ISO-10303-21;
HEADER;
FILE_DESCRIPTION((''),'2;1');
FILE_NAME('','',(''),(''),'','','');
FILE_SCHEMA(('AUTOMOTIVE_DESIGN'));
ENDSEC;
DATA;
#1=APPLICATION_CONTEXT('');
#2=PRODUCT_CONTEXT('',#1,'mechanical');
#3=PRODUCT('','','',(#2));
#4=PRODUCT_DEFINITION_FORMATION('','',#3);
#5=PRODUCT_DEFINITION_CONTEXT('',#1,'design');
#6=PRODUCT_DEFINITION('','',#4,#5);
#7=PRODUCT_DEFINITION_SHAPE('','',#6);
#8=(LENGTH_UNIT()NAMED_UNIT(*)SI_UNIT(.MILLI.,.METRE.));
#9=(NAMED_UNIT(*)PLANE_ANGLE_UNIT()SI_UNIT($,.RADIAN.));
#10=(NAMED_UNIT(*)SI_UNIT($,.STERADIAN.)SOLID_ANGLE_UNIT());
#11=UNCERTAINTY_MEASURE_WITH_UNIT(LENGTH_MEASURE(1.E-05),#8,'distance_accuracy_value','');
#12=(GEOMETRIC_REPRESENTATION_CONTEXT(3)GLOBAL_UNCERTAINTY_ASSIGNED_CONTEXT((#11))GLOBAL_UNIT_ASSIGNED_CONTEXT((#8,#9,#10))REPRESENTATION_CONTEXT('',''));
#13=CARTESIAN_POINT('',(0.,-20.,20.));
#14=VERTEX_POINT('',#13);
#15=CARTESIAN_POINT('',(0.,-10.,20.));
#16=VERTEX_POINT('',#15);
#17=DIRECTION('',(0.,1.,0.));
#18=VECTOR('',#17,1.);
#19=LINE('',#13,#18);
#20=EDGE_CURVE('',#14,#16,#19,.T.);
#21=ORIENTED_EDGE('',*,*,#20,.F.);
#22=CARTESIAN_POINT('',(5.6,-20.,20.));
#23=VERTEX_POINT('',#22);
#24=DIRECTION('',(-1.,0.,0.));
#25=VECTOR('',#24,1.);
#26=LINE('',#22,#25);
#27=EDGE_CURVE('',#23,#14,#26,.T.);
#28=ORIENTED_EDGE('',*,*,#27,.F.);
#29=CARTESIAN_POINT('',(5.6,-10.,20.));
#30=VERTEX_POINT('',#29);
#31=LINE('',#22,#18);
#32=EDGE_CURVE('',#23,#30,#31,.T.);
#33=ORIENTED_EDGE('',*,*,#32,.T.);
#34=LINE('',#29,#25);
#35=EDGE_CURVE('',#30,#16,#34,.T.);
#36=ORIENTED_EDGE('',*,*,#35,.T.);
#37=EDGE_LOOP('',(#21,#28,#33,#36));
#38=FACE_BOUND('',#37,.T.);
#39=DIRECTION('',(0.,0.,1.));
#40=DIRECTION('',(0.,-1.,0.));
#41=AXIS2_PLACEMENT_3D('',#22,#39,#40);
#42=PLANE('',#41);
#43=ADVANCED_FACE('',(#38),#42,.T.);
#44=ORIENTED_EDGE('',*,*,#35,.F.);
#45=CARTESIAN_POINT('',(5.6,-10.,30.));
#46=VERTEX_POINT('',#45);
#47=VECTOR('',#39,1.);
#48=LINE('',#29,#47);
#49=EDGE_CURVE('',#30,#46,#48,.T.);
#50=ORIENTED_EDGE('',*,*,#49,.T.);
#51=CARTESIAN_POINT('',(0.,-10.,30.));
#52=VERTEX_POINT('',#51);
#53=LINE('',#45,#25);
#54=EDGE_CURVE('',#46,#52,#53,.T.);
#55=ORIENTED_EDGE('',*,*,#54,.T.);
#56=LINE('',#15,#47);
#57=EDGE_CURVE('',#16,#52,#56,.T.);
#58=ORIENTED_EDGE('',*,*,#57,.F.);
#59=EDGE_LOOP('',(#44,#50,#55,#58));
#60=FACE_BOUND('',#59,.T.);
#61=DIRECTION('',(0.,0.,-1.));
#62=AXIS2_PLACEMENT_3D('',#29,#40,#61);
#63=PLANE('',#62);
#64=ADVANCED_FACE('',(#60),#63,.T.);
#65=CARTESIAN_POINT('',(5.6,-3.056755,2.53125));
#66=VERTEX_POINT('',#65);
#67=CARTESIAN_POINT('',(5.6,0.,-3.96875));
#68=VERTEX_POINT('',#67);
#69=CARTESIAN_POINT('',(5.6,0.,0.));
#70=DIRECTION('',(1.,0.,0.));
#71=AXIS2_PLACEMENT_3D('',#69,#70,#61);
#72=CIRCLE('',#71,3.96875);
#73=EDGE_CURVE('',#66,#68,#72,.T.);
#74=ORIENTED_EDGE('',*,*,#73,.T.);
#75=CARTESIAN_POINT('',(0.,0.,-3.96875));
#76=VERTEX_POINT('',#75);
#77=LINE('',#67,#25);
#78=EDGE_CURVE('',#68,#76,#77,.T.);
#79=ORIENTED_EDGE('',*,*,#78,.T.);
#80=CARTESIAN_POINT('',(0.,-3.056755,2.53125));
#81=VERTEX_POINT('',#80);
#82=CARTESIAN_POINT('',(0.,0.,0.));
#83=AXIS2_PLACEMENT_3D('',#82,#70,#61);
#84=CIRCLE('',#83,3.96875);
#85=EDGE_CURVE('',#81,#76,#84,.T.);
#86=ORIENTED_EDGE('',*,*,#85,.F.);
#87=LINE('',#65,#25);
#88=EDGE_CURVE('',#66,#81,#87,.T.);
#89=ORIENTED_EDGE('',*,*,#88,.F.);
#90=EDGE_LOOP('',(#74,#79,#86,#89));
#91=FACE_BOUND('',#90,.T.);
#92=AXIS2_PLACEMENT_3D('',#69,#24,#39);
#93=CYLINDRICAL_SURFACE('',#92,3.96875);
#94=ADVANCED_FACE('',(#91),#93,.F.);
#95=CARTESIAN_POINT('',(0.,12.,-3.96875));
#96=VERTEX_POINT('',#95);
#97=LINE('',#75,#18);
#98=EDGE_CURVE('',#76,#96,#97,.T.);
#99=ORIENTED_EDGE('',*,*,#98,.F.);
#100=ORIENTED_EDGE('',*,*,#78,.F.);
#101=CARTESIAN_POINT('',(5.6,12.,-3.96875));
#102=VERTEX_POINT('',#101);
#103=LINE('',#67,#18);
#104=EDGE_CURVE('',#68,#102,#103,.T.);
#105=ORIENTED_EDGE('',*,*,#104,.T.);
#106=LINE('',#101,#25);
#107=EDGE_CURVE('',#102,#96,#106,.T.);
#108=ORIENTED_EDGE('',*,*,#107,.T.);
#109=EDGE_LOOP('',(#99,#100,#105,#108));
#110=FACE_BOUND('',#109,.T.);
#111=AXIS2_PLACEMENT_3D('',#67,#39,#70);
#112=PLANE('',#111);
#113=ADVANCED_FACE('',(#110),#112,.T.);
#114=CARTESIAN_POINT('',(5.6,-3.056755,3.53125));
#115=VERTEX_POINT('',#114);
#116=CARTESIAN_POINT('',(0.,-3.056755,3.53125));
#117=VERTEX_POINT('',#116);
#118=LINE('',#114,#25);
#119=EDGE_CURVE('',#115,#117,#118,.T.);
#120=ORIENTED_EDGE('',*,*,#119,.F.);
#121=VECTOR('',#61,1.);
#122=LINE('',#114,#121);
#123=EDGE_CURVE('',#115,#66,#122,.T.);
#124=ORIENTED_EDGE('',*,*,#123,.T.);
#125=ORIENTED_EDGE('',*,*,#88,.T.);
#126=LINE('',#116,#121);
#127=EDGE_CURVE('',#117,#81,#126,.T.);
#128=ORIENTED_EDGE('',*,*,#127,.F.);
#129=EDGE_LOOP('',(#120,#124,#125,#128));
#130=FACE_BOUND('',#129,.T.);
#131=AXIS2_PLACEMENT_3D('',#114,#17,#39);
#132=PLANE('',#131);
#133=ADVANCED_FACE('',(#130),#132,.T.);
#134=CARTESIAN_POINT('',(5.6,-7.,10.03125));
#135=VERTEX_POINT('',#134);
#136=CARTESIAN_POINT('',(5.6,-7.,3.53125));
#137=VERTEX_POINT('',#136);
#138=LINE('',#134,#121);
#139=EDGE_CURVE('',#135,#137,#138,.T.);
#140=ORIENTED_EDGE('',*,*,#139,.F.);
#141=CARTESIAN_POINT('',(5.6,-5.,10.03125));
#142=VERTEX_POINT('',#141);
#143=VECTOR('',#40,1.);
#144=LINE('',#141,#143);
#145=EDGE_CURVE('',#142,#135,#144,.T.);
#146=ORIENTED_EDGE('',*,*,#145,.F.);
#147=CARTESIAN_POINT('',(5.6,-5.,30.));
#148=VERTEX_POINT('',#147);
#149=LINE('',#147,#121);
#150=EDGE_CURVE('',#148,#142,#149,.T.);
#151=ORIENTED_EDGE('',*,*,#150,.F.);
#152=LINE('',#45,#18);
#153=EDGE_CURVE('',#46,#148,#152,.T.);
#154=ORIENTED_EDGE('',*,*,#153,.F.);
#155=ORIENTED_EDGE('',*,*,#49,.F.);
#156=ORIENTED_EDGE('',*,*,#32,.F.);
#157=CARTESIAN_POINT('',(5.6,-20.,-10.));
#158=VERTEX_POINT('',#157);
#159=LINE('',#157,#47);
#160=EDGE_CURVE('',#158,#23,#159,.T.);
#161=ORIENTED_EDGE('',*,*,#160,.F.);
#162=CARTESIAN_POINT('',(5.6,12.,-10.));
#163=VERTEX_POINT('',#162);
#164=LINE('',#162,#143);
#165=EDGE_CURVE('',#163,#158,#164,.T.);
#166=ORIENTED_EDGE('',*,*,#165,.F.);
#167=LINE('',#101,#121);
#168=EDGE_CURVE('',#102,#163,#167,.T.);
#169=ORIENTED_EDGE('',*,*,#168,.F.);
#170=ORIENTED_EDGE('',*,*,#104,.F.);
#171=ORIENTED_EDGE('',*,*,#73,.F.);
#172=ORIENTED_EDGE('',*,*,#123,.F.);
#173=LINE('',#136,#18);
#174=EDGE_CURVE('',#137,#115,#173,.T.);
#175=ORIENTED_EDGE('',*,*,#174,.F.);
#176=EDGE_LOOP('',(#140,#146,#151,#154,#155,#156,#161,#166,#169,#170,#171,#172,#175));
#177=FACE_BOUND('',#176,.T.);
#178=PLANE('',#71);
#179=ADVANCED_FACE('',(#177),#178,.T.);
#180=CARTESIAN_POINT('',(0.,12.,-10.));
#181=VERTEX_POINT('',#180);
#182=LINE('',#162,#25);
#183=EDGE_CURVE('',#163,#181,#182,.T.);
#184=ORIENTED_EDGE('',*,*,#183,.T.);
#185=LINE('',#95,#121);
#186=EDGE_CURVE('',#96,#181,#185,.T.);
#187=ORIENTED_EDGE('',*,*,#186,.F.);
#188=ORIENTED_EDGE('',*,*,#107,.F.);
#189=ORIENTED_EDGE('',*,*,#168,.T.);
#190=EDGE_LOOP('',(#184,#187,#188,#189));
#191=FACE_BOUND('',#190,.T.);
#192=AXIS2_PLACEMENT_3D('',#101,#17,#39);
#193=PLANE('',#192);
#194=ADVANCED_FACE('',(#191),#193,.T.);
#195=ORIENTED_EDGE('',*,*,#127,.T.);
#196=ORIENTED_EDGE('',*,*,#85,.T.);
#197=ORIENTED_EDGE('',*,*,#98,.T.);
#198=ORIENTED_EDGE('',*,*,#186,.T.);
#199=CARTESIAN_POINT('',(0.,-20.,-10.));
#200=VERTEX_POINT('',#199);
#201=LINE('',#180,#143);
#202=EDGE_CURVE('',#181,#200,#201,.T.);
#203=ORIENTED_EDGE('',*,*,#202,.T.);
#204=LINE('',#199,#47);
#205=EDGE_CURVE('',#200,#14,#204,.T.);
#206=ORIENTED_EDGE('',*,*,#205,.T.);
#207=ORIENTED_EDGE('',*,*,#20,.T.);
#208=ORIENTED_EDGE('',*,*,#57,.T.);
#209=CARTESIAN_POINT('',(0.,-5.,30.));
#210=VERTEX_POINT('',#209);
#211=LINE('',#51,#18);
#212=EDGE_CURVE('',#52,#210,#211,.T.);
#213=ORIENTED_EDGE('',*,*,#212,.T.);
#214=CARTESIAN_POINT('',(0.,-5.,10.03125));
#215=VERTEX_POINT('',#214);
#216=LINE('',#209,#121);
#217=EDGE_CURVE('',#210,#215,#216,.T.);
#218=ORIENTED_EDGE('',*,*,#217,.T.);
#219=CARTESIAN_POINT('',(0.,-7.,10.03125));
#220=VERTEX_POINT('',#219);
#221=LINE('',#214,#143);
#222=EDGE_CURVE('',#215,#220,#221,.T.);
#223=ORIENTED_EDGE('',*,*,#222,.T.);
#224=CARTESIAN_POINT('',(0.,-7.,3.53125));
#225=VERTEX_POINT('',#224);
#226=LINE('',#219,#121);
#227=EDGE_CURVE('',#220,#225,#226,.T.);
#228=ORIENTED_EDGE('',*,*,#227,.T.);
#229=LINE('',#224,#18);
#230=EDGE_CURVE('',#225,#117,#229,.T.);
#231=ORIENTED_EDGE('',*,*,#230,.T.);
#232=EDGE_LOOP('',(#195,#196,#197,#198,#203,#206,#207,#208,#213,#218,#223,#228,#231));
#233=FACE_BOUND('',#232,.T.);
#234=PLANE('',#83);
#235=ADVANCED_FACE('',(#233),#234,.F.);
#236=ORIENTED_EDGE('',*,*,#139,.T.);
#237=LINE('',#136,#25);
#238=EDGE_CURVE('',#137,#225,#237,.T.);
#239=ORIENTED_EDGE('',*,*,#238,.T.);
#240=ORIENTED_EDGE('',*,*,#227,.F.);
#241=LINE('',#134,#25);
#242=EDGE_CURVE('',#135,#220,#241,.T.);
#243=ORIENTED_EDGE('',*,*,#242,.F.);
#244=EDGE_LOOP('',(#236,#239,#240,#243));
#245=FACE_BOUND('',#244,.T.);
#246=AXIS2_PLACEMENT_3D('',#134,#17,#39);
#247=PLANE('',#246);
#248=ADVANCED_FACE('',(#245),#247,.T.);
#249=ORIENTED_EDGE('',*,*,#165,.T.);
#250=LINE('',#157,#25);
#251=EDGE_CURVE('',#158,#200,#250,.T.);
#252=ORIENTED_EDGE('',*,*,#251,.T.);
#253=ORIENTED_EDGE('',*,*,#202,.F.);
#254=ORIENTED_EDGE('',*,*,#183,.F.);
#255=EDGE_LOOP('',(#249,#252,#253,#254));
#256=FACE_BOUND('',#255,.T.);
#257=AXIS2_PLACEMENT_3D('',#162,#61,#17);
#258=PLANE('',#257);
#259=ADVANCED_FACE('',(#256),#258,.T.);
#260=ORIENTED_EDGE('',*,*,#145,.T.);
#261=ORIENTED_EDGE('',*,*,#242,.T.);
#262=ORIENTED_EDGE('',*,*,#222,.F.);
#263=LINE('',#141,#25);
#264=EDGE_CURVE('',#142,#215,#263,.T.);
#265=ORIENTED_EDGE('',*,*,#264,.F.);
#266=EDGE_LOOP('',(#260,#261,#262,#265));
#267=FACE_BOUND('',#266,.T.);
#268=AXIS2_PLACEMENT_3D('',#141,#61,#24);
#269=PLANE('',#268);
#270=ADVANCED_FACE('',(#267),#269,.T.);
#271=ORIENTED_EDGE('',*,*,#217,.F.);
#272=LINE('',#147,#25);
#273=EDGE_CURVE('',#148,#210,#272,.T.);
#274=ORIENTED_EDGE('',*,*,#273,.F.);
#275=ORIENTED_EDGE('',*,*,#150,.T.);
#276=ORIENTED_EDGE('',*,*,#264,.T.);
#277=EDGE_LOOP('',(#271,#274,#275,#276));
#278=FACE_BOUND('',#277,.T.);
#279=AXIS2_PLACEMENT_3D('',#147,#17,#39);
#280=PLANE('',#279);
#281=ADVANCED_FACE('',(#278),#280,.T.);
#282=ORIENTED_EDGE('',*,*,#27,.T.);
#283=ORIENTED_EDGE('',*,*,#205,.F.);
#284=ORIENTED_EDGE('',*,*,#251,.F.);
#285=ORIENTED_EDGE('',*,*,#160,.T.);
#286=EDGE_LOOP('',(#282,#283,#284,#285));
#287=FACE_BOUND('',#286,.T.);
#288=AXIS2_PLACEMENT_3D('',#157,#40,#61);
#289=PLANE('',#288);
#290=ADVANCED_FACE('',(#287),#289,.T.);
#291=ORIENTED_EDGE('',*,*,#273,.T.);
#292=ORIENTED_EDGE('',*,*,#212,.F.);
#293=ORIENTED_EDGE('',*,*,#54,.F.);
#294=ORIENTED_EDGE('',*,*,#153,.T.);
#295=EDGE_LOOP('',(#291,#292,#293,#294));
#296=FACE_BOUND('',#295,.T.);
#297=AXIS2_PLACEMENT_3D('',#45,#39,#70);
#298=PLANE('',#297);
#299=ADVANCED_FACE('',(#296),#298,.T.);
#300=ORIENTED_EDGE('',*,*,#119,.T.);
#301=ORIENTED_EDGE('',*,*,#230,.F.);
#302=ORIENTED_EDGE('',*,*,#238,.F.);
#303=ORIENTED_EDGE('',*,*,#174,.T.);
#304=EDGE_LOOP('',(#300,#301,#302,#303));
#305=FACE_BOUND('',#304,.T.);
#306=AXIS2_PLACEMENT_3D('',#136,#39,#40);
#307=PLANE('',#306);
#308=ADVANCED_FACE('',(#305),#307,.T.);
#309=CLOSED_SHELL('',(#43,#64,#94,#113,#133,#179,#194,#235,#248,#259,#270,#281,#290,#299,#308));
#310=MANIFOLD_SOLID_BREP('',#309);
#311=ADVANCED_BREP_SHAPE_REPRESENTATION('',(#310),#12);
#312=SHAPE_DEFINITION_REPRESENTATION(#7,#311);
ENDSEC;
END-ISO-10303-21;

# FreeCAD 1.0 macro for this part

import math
import FreeCAD as App
import Part
import Sketcher

doc = App.newDocument("Part")
body = doc.addObject("PartDesign::Body", "Body")

# Sketch on YZ plane
sketch1 = body.newObject("Sketcher::SketchObject", "Sketch")
sketch1.AttachmentSupport = (doc.getObject("YZ_Plane"), [""])
sketch1.MapMode = "FlatFace"
sketch1.addGeometry(Part.LineSegment(App.Vector(12, -3.96875, 0), App.Vector(0, -3.96875, 0)), False)
sketch1.addGeometry(Part.ArcOfCircle(Part.Circle(App.Vector(0, 0, 0), App.Vector(0, 0, 1), 3.96875), math.radians(140.372385), math.radians(270)), False)
sketch1.addGeometry(Part.LineSegment(App.Vector(-3.056755, 2.53125, 0), App.Vector(-3.056755, 3.53125, 0)), False)
sketch1.addGeometry(Part.LineSegment(App.Vector(-3.056755, 3.53125, 0), App.Vector(-7, 3.53125, 0)), False)
sketch1.addGeometry(Part.LineSegment(App.Vector(-7, 3.53125, 0), App.Vector(-7, 10.03125, 0)), False)
sketch1.addGeometry(Part.LineSegment(App.Vector(-7, 10.03125, 0), App.Vector(-5, 10.03125, 0)), False)
sketch1.addGeometry(Part.LineSegment(App.Vector(-5, 10.03125, 0), App.Vector(-5, 30, 0)), False)
sketch1.addGeometry(Part.LineSegment(App.Vector(-5, 30, 0), App.Vector(-10, 30, 0)), False)
sketch1.addGeometry(Part.LineSegment(App.Vector(-10, 30, 0), App.Vector(-10, 20, 0)), False)
sketch1.addGeometry(Part.LineSegment(App.Vector(-10, 20, 0), App.Vector(-20, 20, 0)), False)
sketch1.addGeometry(Part.LineSegment(App.Vector(-20, 20, 0), App.Vector(-20, -10, 0)), False)
sketch1.addGeometry(Part.LineSegment(App.Vector(-20, -10, 0), App.Vector(12, -10, 0)), False)
sketch1.addGeometry(Part.LineSegment(App.Vector(12, -10, 0), App.Vector(12, -3.96875, 0)), False)
sketch1.addConstraint(Sketcher.Constraint("Tangent", 0, 2, 1, 2))
sketch1.addConstraint(Sketcher.Constraint("Coincident", 1, 1, 2, 1))
sketch1.addConstraint(Sketcher.Constraint("Coincident", 2, 2, 3, 1))
sketch1.addConstraint(Sketcher.Constraint("Coincident", 3, 2, 4, 1))
sketch1.addConstraint(Sketcher.Constraint("Coincident", 4, 2, 5, 1))
sketch1.addConstraint(Sketcher.Constraint("Coincident", 5, 2, 6, 1))
sketch1.addConstraint(Sketcher.Constraint("Coincident", 6, 2, 7, 1))
sketch1.addConstraint(Sketcher.Constraint("Coincident", 7, 2, 8, 1))
sketch1.addConstraint(Sketcher.Constraint("Coincident", 8, 2, 9, 1))
sketch1.addConstraint(Sketcher.Constraint("Coincident", 9, 2, 10, 1))
sketch1.addConstraint(Sketcher.Constraint("Coincident", 10, 2, 11, 1))
sketch1.addConstraint(Sketcher.Constraint("Coincident", 11, 2, 12, 1))
sketch1.addConstraint(Sketcher.Constraint("Coincident", 12, 2, 0, 1))
sketch1.addConstraint(Sketcher.Constraint("Horizontal", 0))
sketch1.addConstraint(Sketcher.Constraint("Vertical", 2))
sketch1.addConstraint(Sketcher.Constraint("Horizontal", 3))
sketch1.addConstraint(Sketcher.Constraint("Vertical", 4))
sketch1.addConstraint(Sketcher.Constraint("Horizontal", 5))
sketch1.addConstraint(Sketcher.Constraint("Vertical", 6))
sketch1.addConstraint(Sketcher.Constraint("Horizontal", 7))
sketch1.addConstraint(Sketcher.Constraint("Vertical", 8))
sketch1.addConstraint(Sketcher.Constraint("Horizontal", 9))
sketch1.addConstraint(Sketcher.Constraint("Vertical", 10))
sketch1.addConstraint(Sketcher.Constraint("Horizontal", 11))
sketch1.addConstraint(Sketcher.Constraint("Vertical", 12))
sketch1.addConstraint(Sketcher.Constraint("Coincident", 1, 3, -1, 1))
sketch1.addConstraint(Sketcher.Constraint("Equal", 9, 8))
sketch1.addConstraint(Sketcher.Constraint("DistanceX", 0, 2, 0, 1, 12.0))
sketch1.addConstraint(Sketcher.Constraint("DistanceX", 5, 1, 5, 2, 2.0))
sketch1.addConstraint(Sketcher.Constraint("DistanceX", 7, 2, 7, 1, 5.0))
sketch1.addConstraint(Sketcher.Constraint("DistanceX", 9, 2, 9, 1, 10.0))
sketch1.addConstraint(Sketcher.Constraint("DistanceX", 11, 1, 11, 2, 32.0))
sketch1.addConstraint(Sketcher.Constraint("DistanceY", 2, 1, 2, 2, 1.0))
sketch1.addConstraint(Sketcher.Constraint("DistanceY", 10, 2, 10, 1, 30.0))
sketch1.addConstraint(Sketcher.Constraint("DistanceY", 4, 1, 4, 2, 6.5))
sketch1.addConstraint(Sketcher.Constraint("DistanceY", -1, 1, 6, 2, 30.0))
sketch1.addConstraint(Sketcher.Constraint("DistanceY", 0, 2, 4, 2, 14.0))
sketch1.addConstraint(Sketcher.Constraint("Radius", 1, 3.96875))
pad1 = body.newObject("PartDesign::Pad", "Pad")
pad1.Profile = sketch1
pad1.Length = 5.6

doc.recompute()
